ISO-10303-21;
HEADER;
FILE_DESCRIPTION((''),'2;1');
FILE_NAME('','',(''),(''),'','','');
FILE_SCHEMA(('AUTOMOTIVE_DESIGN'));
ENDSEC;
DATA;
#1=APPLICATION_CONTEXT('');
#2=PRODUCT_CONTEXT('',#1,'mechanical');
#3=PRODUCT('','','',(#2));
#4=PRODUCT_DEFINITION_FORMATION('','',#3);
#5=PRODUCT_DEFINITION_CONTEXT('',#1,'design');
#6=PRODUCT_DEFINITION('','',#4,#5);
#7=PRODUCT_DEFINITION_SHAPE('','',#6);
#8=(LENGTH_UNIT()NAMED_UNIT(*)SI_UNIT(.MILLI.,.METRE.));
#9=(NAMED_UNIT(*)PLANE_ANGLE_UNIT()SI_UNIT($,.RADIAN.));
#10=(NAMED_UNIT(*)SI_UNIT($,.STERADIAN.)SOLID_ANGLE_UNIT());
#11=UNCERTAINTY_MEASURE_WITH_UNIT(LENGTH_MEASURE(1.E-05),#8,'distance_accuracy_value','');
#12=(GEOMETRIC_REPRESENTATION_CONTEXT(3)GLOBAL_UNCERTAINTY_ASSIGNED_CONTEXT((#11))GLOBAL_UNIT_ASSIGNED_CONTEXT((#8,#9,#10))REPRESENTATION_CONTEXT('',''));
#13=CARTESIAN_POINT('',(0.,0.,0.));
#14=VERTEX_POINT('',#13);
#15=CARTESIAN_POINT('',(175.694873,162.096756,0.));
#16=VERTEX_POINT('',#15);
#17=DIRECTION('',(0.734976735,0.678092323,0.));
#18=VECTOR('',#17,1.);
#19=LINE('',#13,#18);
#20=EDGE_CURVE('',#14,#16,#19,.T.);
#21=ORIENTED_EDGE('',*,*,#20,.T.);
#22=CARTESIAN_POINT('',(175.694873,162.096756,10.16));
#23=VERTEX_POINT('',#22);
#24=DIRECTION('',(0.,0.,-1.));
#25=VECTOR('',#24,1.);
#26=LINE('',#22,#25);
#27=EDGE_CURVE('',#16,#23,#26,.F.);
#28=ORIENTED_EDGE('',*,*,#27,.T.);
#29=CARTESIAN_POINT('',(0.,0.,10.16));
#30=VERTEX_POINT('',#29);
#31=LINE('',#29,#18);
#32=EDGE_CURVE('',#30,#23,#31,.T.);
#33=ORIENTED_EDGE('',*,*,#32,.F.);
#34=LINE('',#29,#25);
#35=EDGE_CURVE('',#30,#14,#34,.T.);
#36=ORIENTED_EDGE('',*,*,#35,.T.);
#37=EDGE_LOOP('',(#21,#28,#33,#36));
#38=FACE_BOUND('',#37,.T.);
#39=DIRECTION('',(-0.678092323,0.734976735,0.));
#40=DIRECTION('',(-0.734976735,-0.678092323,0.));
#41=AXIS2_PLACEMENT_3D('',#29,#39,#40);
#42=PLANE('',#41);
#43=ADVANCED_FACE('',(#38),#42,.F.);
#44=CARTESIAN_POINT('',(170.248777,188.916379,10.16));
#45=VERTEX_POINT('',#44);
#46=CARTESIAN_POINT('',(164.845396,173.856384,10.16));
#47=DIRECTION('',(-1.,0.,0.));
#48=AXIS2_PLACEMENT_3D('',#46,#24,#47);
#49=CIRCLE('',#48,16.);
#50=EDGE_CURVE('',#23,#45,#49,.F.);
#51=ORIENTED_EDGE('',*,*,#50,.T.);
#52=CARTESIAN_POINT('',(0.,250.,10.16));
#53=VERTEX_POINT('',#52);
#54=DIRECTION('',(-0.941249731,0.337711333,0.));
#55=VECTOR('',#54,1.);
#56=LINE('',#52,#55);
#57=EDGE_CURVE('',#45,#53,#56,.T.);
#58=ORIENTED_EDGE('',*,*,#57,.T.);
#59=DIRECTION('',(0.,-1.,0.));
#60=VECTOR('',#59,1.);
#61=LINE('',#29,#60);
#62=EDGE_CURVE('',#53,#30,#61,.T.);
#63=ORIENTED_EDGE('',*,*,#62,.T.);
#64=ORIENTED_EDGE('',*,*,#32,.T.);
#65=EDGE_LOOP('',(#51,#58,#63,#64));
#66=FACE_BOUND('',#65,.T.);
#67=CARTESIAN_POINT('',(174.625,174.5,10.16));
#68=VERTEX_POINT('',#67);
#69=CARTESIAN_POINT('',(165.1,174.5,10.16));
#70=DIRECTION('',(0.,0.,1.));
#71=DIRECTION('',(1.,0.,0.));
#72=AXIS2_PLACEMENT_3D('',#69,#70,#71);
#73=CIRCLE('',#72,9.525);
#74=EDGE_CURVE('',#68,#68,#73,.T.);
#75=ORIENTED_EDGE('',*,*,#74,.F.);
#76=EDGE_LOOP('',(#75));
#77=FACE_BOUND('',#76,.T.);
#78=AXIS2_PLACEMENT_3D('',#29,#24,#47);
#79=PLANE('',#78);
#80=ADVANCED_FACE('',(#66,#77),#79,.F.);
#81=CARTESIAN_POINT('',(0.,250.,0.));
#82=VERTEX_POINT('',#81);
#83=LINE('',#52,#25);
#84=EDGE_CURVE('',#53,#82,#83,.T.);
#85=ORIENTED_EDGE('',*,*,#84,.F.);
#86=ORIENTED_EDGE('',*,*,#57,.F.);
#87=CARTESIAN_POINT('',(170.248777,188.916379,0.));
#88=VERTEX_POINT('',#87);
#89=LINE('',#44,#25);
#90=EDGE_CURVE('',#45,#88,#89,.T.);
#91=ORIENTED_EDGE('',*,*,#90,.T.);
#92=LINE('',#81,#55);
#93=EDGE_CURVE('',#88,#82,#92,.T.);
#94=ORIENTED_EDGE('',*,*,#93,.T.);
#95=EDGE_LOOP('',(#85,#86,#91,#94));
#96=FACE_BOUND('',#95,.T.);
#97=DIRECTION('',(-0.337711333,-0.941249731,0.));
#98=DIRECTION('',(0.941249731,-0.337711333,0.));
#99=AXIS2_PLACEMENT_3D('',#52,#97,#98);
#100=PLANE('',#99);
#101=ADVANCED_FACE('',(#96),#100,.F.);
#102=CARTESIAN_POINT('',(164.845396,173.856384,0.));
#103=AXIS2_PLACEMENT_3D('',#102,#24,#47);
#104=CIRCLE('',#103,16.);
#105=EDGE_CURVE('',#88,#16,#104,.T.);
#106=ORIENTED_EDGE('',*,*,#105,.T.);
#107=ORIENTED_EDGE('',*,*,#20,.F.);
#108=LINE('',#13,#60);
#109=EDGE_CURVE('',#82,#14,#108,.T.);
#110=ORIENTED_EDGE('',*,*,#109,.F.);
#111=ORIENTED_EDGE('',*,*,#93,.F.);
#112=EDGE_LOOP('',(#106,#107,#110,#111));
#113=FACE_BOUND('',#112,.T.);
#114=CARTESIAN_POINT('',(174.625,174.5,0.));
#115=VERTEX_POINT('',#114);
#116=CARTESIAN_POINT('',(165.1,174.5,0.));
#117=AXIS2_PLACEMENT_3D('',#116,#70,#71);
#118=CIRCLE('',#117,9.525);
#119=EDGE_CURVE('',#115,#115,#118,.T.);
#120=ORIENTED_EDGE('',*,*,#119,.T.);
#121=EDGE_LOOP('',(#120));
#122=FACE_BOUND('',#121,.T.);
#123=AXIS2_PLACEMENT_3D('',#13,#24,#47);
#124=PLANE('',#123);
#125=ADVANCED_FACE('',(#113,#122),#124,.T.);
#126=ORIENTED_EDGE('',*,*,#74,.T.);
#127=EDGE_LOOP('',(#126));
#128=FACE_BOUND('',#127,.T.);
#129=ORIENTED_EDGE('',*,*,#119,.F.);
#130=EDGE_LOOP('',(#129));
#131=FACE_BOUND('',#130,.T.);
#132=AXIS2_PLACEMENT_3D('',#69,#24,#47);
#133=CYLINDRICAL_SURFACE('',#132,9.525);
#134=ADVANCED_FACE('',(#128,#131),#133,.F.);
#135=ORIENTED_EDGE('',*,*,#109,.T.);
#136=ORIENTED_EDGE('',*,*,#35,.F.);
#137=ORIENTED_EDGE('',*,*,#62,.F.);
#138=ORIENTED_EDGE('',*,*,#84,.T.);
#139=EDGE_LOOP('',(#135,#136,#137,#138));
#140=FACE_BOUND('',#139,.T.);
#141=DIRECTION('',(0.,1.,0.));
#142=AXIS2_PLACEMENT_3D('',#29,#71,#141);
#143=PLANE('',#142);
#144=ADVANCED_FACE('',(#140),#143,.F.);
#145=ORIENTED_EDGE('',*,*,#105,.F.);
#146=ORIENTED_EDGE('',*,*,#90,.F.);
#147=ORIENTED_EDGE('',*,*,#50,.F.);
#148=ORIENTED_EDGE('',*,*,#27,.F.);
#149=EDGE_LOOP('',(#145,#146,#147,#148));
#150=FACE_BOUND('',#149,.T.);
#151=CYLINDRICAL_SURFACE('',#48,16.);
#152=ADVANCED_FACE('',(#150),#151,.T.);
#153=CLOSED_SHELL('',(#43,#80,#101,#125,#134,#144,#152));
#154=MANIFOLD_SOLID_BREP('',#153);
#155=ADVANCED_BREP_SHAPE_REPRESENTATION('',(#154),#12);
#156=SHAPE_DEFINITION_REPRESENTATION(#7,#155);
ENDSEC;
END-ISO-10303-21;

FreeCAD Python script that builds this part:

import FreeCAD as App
import Part
import Sketcher


def edges_at(feature, points):
    """Names of the edges that pass closest to the given points."""
    edges = feature.Shape.Edges
    near = lambda p: min(range(len(edges)), key=lambda i: edges[i].distToShape(Part.Vertex(*p))[0])
    return sorted({f"Edge{near(p) + 1}" for p in points})


def add_polygon(sketch, points):
    """Adds a closed chain of lines whose ends are joined by coincident constraints."""
    first, n = sketch.GeometryCount, len(points)
    for a, b in zip(points, points[1:] + points[:1]):
        sketch.addGeometry(Part.LineSegment(App.Vector(*a, 0), App.Vector(*b, 0)), False)
    for i in range(n):
        sketch.addConstraint(Sketcher.Constraint("Coincident", first + i, 2, first + (i + 1) % n, 1))

doc = App.newDocument("Part")
body = doc.addObject("PartDesign::Body", "Body")

# Sketch on XY plane
sketch1 = body.newObject("Sketcher::SketchObject", "Sketch")
sketch1.AttachmentSupport = (doc.getObject("XY_Plane"), [""])
sketch1.MapMode = "FlatFace"
add_polygon(sketch1, [(0, 250), (0, 0), (195.1, 180)])  # lines 0-2
sketch1.addGeometry(Part.Circle(App.Vector(165.1, 174.5, 0), App.Vector(0, 0, 1), 9.525), False)  # 3
sketch1.addConstraint([
    Sketcher.Constraint("Vertical", 0),
    Sketcher.Constraint("Coincident", 0, 2, -1, 1),
    Sketcher.Constraint("Diameter", 3, 19.05),
    Sketcher.Constraint("DistanceY", 0, 2, 0, 1, 250.0),
    Sketcher.Constraint("DistanceY", -1, 1, 1, 2, 180.0),
    Sketcher.Constraint("DistanceX", 3, 3, 1, 2, 30.0),
    Sketcher.Constraint("DistanceX", -1, 1, 3, 3, 165.1),
    Sketcher.Constraint("DistanceY", -1, 1, 3, 3, 174.5),
])
pad1 = body.newObject("PartDesign::Pad", "Pad")
pad1.Profile = sketch1
pad1.Length = 10.16
doc.recompute()

fillet = body.newObject("PartDesign::Fillet", "Fillet")
fillet.Base = (pad1, edges_at(pad1, [(195.1, 180, 5.08)]))
fillet.Radius = 16

doc.recompute()
